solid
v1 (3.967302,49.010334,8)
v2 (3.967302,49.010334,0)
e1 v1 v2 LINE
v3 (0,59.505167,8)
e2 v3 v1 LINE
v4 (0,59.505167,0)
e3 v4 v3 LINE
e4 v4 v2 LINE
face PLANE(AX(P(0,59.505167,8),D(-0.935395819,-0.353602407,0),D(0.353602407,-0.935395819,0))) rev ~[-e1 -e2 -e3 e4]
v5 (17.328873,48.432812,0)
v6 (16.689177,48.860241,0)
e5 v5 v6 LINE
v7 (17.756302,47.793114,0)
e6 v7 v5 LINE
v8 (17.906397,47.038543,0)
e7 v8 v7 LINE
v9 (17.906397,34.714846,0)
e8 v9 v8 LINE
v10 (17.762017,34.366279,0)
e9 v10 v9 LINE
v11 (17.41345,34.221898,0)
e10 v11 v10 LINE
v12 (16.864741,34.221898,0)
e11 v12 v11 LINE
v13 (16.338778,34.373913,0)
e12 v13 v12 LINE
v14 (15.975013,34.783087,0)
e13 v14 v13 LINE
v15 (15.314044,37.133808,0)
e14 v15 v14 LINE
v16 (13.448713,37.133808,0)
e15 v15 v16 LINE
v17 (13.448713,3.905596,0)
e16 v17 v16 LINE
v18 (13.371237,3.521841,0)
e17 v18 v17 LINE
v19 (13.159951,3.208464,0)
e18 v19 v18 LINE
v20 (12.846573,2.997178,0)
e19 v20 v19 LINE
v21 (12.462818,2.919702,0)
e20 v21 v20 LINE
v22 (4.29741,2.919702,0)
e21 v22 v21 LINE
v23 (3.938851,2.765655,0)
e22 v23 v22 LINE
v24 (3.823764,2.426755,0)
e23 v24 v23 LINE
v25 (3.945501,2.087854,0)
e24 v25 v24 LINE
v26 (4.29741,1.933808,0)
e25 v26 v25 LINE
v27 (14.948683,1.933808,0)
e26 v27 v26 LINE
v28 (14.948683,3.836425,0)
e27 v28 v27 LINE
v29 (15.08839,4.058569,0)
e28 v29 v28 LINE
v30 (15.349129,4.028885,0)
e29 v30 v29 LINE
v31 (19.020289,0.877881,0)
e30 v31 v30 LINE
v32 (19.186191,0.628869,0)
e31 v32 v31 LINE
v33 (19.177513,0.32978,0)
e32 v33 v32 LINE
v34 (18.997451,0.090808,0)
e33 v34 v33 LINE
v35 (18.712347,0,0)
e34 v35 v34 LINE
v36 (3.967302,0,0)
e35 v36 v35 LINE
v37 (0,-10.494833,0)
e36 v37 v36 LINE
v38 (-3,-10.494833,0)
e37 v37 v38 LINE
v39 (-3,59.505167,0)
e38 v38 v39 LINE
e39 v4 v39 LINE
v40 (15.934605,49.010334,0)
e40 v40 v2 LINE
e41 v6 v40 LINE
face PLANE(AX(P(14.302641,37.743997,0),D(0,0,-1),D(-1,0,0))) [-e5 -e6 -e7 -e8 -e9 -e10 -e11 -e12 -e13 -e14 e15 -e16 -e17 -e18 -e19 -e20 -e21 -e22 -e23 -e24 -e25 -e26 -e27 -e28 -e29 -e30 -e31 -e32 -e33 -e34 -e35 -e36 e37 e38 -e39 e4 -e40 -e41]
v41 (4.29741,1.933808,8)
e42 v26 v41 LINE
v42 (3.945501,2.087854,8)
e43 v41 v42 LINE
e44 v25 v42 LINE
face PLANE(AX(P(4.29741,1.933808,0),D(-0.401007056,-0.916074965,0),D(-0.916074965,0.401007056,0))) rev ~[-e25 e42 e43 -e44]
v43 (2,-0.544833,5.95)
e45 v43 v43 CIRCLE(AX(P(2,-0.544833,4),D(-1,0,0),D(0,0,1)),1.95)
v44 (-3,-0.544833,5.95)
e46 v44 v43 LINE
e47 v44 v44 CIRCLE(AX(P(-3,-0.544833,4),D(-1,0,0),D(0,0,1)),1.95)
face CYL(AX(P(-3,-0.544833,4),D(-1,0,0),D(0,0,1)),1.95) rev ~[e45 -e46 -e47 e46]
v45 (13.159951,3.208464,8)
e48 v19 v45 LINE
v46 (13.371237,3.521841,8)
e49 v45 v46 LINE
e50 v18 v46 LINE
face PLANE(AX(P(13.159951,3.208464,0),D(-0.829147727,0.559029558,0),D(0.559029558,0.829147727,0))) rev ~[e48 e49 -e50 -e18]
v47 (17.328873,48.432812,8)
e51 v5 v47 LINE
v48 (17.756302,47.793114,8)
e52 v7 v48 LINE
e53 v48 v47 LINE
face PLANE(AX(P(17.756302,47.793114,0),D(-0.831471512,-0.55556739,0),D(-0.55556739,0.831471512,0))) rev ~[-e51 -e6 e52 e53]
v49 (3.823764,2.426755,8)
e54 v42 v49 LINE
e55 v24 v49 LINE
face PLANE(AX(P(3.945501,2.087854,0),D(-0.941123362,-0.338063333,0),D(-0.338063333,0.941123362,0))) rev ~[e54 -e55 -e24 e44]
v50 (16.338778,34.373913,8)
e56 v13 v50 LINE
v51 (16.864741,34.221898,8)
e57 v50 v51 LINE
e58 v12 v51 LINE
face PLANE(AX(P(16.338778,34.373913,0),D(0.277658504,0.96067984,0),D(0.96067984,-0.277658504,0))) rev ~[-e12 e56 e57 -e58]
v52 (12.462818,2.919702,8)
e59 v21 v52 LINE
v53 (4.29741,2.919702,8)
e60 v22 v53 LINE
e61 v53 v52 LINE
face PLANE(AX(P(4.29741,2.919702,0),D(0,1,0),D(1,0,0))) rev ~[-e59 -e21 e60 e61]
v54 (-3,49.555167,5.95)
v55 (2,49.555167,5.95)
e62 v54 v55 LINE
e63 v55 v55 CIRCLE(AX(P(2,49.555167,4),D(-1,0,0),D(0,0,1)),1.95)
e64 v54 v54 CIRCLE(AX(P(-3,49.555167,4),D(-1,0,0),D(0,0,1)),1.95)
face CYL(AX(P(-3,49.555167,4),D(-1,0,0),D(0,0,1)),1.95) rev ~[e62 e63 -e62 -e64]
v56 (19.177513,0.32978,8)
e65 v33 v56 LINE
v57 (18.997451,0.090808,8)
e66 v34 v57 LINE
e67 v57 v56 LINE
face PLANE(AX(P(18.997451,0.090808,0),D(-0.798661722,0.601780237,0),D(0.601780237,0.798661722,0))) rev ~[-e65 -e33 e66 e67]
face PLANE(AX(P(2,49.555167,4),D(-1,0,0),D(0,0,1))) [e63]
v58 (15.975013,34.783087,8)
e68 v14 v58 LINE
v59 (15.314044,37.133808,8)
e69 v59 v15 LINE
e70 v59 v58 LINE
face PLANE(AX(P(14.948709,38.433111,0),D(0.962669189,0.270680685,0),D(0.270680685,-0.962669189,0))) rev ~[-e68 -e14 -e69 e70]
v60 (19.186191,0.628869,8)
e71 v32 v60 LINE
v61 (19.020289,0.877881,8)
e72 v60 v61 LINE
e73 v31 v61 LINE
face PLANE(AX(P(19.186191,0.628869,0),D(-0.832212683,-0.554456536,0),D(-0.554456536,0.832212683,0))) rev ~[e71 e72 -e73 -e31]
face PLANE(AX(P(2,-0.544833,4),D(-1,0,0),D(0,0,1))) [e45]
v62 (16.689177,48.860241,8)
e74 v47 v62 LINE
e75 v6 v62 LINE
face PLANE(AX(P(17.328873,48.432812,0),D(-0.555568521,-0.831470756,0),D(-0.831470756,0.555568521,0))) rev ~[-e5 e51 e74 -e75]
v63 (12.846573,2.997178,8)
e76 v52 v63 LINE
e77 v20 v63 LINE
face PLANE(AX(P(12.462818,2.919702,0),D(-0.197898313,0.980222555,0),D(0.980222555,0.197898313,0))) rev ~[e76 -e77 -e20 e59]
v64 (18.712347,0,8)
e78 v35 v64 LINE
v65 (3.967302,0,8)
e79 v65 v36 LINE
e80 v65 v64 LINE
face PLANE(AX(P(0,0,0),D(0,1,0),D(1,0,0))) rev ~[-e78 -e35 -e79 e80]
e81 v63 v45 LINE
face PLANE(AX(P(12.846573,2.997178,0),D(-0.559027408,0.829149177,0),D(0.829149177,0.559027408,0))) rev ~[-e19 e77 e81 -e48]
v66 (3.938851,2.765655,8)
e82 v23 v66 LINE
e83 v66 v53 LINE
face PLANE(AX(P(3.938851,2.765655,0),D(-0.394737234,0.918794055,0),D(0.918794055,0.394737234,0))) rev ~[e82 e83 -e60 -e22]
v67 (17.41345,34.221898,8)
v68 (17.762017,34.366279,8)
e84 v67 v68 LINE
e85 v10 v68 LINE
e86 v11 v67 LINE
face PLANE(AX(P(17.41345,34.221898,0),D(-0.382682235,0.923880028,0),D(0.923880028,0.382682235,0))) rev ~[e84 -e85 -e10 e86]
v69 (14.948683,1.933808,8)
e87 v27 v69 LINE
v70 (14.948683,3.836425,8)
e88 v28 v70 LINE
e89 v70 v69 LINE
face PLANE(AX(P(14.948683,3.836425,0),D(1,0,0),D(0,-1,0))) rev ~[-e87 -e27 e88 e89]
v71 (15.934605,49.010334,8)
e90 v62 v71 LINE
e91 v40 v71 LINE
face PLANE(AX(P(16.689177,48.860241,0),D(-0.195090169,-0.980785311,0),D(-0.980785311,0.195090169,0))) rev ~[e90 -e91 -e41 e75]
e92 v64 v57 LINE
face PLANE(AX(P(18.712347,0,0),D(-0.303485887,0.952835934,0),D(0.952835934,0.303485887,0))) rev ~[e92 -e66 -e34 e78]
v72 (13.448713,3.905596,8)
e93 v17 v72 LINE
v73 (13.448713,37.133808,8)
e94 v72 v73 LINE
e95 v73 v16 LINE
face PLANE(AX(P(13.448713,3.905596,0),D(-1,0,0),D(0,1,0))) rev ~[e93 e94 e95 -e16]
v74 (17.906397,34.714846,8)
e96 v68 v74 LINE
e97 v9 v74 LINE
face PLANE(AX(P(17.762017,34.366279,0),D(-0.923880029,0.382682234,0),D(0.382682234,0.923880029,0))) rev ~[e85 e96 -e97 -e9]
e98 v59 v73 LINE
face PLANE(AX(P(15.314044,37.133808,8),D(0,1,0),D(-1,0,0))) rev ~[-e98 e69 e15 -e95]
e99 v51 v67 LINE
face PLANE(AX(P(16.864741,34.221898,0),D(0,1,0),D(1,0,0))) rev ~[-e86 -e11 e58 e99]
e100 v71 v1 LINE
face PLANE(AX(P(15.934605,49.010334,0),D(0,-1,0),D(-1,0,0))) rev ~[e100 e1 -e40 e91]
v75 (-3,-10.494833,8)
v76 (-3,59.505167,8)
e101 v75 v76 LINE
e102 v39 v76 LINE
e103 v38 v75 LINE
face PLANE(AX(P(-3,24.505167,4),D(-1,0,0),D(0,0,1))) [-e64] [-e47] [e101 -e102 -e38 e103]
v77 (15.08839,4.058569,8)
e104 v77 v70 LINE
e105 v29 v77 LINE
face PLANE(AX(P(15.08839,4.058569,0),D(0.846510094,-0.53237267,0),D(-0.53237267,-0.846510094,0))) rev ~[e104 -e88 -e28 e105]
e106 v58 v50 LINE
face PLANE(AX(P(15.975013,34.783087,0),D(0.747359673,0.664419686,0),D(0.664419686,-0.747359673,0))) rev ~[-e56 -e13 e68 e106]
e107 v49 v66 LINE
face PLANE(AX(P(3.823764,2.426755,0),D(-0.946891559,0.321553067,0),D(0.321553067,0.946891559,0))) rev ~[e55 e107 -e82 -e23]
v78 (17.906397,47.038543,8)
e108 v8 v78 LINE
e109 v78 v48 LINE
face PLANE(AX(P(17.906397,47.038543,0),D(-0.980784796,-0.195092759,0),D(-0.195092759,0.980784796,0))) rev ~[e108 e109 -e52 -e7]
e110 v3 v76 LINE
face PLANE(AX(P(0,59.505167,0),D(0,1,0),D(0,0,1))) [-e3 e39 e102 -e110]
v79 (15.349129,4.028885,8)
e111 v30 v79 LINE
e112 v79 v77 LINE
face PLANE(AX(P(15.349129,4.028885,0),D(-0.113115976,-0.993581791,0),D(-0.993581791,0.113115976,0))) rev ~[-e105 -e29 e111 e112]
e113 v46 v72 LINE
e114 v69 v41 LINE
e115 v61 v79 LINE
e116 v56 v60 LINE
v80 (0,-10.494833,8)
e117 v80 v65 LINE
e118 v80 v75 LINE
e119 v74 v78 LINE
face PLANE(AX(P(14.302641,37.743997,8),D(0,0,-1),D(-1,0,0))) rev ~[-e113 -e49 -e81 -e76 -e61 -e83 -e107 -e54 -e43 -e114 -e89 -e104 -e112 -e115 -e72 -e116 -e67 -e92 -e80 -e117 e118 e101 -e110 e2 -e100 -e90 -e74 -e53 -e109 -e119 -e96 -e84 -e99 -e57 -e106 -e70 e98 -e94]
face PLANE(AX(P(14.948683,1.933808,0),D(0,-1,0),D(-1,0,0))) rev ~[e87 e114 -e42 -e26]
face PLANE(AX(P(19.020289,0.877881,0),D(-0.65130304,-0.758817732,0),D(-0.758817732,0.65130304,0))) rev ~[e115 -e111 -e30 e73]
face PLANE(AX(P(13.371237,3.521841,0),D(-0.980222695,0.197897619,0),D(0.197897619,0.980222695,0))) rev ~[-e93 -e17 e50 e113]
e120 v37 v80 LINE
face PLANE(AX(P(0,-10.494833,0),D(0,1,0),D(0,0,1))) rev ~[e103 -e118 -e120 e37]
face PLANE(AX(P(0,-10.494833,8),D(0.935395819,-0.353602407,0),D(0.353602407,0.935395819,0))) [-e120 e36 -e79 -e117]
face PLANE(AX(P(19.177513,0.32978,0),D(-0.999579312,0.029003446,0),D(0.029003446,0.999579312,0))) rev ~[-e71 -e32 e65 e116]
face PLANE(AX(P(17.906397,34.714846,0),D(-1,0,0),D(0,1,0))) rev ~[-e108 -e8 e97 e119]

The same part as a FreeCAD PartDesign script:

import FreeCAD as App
import Part
import Sketcher
Q = App.Units.Quantity


def add_polygon(sketch, points):
    """Adds a closed chain of lines whose ends are joined by coincident constraints."""
    first, n = sketch.GeometryCount, len(points)
    for a, b in zip(points, points[1:] + points[:1]):
        sketch.addGeometry(Part.LineSegment(App.Vector(*a, 0), App.Vector(*b, 0)), False)
    for i in range(n):
        sketch.addConstraint(Sketcher.Constraint("Coincident", first + i, 2, first + (i + 1) % n, 1))

doc = App.newDocument("Part")
body = doc.addObject("PartDesign::Body", "Body")

# Sketch on XY plane
sketch1 = doc.addObject("Sketcher::SketchObject", "Sketch")
body.addObject(sketch1)
sketch1.AttachmentSupport = (doc.XY_Plane, [""])
sketch1.MapMode = "FlatFace"
add_polygon(sketch1, [(17.41, 34.22), (17.76, 34.37), (17.91, 34.71), (17.91, 47.04), (17.76, 47.79), (17.33, 48.43), (16.69, 48.86), (15.93, 49.01), (0, 49.01), (0, 0), (18.71, 0), (19, 0.09), (19.18, 0.33), (19.19, 0.63), (19.02, 0.88), (15.35, 4.03), (15.09, 4.06), (14.95, 3.84), (14.95, 1.93), (4.3, 1.93), (3.95, 2.09), (3.82, 2.43), (3.94, 2.77), (4.3, 2.92), (12.46, 2.92), (12.85, 3), (13.16, 3.21), (13.37, 3.52), (13.45, 3.91), (13.45, 38.43), (14.95, 38.43), (15.98, 34.78), (16.34, 34.37), (16.86, 34.22)])  # lines 0-33
sketch1.addConstraint([
    Sketcher.Constraint("Vertical", 2),
    Sketcher.Constraint("Horizontal", 7),
    Sketcher.Constraint("Vertical", 8),
    Sketcher.Constraint("Horizontal", 9),
    Sketcher.Constraint("Vertical", 17),
    Sketcher.Constraint("Horizontal", 18),
    Sketcher.Constraint("Horizontal", 23),
    Sketcher.Constraint("Vertical", 28),
    Sketcher.Constraint("Horizontal", 29),
    Sketcher.Constraint("Horizontal", 33),
    Sketcher.Constraint("Coincident", 8, 2, -1, 1),
    Sketcher.Constraint("Vertical", 18, 2, 22, 2),
    Sketcher.Constraint("Equal", 0, 1),
    Sketcher.Constraint("Equal", 4, 5),
    Sketcher.Constraint("Equal", 5, 6),
    Sketcher.Constraint("Equal", 10, 11),
    Sketcher.Constraint("Equal", 11, 12),
    Sketcher.Constraint("Equal", 12, 13),
    Sketcher.Constraint("Equal", 15, 16),
    Sketcher.Constraint("Equal", 25, 26),
    Sketcher.Constraint("Equal", 24, 27),
    Sketcher.Constraint("Angle", 6, Q("168.750009 deg")),
    Sketcher.Constraint("Distance", 14, 4.837999),
    Sketcher.Constraint("DistanceX", 33, 1, 33, 2, 0.548709),
    Sketcher.Constraint("DistanceX", -1, 1, 19, 2, 3.945501),
    Sketcher.Constraint("DistanceY", -1, 1, 22, 2, 2.919702),
    Sketcher.Constraint("DistanceY", 2, 2, 5, 2, 1.821698),
    Sketcher.Constraint("DistanceY", 11, 2, 0, 2, 34.036498),
    Sketcher.Constraint("DistanceY", 11, 2, 13, 2, 0.548101),
    Sketcher.Constraint("DistanceX", 15, 2, 13, 2, 3.931899),
    Sketcher.Constraint("DistanceX", 15, 2, 12, 2, 4.097801),
    Sketcher.Constraint("DistanceY", 12, 2, 15, 2, 3.4297),
    Sketcher.Constraint("DistanceY", 19, 2, 20, 2, 0.3389),
    Sketcher.Constraint("DistanceY", 20, 2, 21, 2, 0.338901),
    Sketcher.Constraint("DistanceY", 28, 2, 4, 2, 9.9997),
    Sketcher.Constraint("DistanceX", 28, 2, 30, 2, 2.5263),
    Sketcher.Constraint("DistanceY", 31, 2, 29, 2, 4.059198),
    Sketcher.Constraint("Distance", 19, 0.384148),
    Sketcher.Constraint("Distance", 21, 0.357909),
    Sketcher.Constraint("Distance", 22, 0.39025),
    Sketcher.Constraint("Distance", 25, 0.377952),
    Sketcher.Constraint("Distance", 32, 0.54749),
    Sketcher.Constraint("DistanceX", 7, 2, 7, 1, 15.934605),
    Sketcher.Constraint("DistanceX", 9, 1, 9, 2, 18.712347),
    Sketcher.Constraint("DistanceX", 18, 2, 18, 1, 10.651273),
    Sketcher.Constraint("DistanceX", 23, 1, 23, 2, 8.165407),
    Sketcher.Constraint("DistanceX", 29, 1, 29, 2, 1.499996),
    Sketcher.Constraint("DistanceY", 2, 1, 2, 2, 12.323697),
    Sketcher.Constraint("DistanceY", 8, 2, 8, 1, 49.010334),
    Sketcher.Constraint("DistanceY", 17, 2, 17, 1, 1.902617),
    Sketcher.Constraint("DistanceY", 28, 1, 28, 2, 34.527516),
    Sketcher.Constraint("DistanceY", -1, 1, 0, 2, 34.366279),
    Sketcher.Constraint("DistanceY", -1, 1, 4, 2, 48.432812),
    Sketcher.Constraint("DistanceY", -1, 1, 5, 2, 48.860241),
    Sketcher.Constraint("DistanceX", -1, 1, 10, 2, 18.997451),
    Sketcher.Constraint("DistanceX", -1, 1, 12, 2, 19.186191),
    Sketcher.Constraint("DistanceX", -1, 1, 14, 2, 15.349129),
    Sketcher.Constraint("DistanceY", -1, 1, 17, 2, 1.933808),
    Sketcher.Constraint("DistanceY", -1, 1, 24, 2, 2.997178),
    Sketcher.Constraint("DistanceX", -1, 1, 25, 2, 13.159951),
    Sketcher.Constraint("DistanceY", -1, 1, 26, 2, 3.521841),
    Sketcher.Constraint("DistanceX", -1, 1, 29, 2, 14.948709),
    Sketcher.Constraint("DistanceX", -1, 1, 32, 2, 16.864741),
    Sketcher.Constraint("DistanceX", 0, 2, 1, 2, 0.144381),
    Sketcher.Constraint("DistanceY", 2, 2, 3, 2, 0.754571),
    Sketcher.Constraint("DistanceX", 5, 2, 2, 2, 1.217221),
    Sketcher.Constraint("DistanceY", 0, 2, 30, 2, 0.416809),
])
pad1 = doc.addObject("PartDesign::Pad", "Pad")
body.addObject(pad1)
pad1.Profile = sketch1
pad1.Length = 8

# Sketch on YZ plane
sketch2 = doc.addObject("Sketcher::SketchObject", "Sketch001")
body.addObject(sketch2)
sketch2.AttachmentSupport = (doc.YZ_Plane, [""])
sketch2.MapMode = "FlatFace"
add_polygon(sketch2, [(60, 0), (-10, 0), (-10, 8), (60, 8)])  # lines 0-3
sketch2.addConstraint([
    Sketcher.Constraint("Horizontal", 0),
    Sketcher.Constraint("Vertical", 1),
    Sketcher.Constraint("Horizontal", 2),
    Sketcher.Constraint("Vertical", 3),
    Sketcher.Constraint("PointOnObject", 0, 2, -1),
    Sketcher.Constraint("DistanceX", 0, 2, 0, 1, 70.0),
    Sketcher.Constraint("DistanceY", 1, 1, 1, 2, 8.0),
    Sketcher.Constraint("DistanceX", 0, 2, -1, 1, 10.494833),
])
pad2 = doc.addObject("PartDesign::Pad", "Pad001")
body.addObject(pad2)
pad2.Profile = sketch2
pad2.Length = 3
pad2.Reversed = True

# Sketch on XY plane
sketch3 = doc.addObject("Sketcher::SketchObject", "Sketch002")
body.addObject(sketch3)
sketch3.AttachmentSupport = (doc.XY_Plane, [""])
sketch3.MapMode = "FlatFace"
sketch3.AttachmentOffset = App.Placement(App.Vector(0, 0, 8), App.Rotation())
add_polygon(sketch3, [(4, 49), (0, 59.5), (0, 49)])  # lines 0-2
add_polygon(sketch3, [(0, 0), (0, -10.5), (4, 0)])  # lines 3-5
sketch3.addConstraint([
    Sketcher.Constraint("Vertical", 1),
    Sketcher.Constraint("Horizontal", 2),
    Sketcher.Constraint("Vertical", 3),
    Sketcher.Constraint("Horizontal", 5),
    Sketcher.Constraint("Coincident", 5, 2, -1, 1),
    Sketcher.Constraint("PointOnObject", 0, 2, -2),
    Sketcher.Constraint("Vertical", 2, 2, 4, 2),
    Sketcher.Constraint("Equal", 1, 3),
    Sketcher.Constraint("DistanceY", 3, 2, 0, 2, 70.0),
    Sketcher.Constraint("Distance", 0, 11.21967),
    Sketcher.Constraint("DistanceX", 2, 1, 2, 2, 3.967302),
])
pad3 = doc.addObject("PartDesign::Pad", "Pad002")
body.addObject(pad3)
pad3.Profile = sketch3
pad3.Length = 8
pad3.Reversed = True

# Sketch on YZ plane
sketch4 = doc.addObject("Sketcher::SketchObject", "Sketch003")
body.addObject(sketch4)
sketch4.AttachmentSupport = (doc.YZ_Plane, [""])
sketch4.MapMode = "FlatFace"
sketch4.AttachmentOffset = App.Placement(App.Vector(0, 0, -3), App.Rotation())
sketch4.addGeometry([
    Part.Circle(App.Vector(49.6, 4, 0), App.Vector(0, 0, 1), 1.9),
    Part.Circle(App.Vector(-0.5, 4, 0), App.Vector(0, 0, 1), 1.9),
], False)
sketch4.addConstraint([
    Sketcher.Constraint("Equal", 0, 1),
    Sketcher.Constraint("Horizontal", 0, 3, 1, 3),
    Sketcher.Constraint("Diameter", 0, 3.9),
    Sketcher.Constraint("DistanceY", -1, 1, 0, 3, 4.0),
    Sketcher.Constraint("DistanceX", 1, 3, 0, 3, 50.1),
    Sketcher.Constraint("DistanceX", -1, 1, 0, 3, 49.555167),
])
pocket1 = doc.addObject("PartDesign::Pocket", "Pocket")
body.addObject(pocket1)
pocket1.Profile = sketch4
pocket1.Length = 5
pocket1.Reversed = True

# Sketch on XY plane
sketch5 = doc.addObject("Sketcher::SketchObject", "Sketch004")
body.addObject(sketch5)
sketch5.AttachmentSupport = (doc.XY_Plane, [""])
sketch5.MapMode = "FlatFace"
sketch5.AttachmentOffset = App.Placement(App.Vector(0, 0, 8), App.Rotation())
add_polygon(sketch5, [(15.3, 37.1), (14.9, 38.4), (13.4, 38.4), (13.4, 37.1)])  # lines 0-3
sketch5.addConstraint([
    Sketcher.Constraint("Horizontal", 1),
    Sketcher.Constraint("Vertical", 2),
    Sketcher.Constraint("Horizontal", 3),
    Sketcher.Constraint("DistanceX", 3, 1, 3, 2, 1.86533),
    Sketcher.Constraint("Distance", 0, 1.349688),
    Sketcher.Constraint("DistanceX", 1, 2, 1, 1, 1.499996),
    Sketcher.Constraint("DistanceX", -1, 1, 0, 2, 14.948709),
    Sketcher.Constraint("DistanceY", -1, 1, 0, 2, 38.433111),
])
pad4 = doc.addObject("PartDesign::Pad", "Pad003")
body.addObject(pad4)
pad4.Profile = sketch5
pad4.Length = 8
pad4.Reversed = True

doc.recompute()
